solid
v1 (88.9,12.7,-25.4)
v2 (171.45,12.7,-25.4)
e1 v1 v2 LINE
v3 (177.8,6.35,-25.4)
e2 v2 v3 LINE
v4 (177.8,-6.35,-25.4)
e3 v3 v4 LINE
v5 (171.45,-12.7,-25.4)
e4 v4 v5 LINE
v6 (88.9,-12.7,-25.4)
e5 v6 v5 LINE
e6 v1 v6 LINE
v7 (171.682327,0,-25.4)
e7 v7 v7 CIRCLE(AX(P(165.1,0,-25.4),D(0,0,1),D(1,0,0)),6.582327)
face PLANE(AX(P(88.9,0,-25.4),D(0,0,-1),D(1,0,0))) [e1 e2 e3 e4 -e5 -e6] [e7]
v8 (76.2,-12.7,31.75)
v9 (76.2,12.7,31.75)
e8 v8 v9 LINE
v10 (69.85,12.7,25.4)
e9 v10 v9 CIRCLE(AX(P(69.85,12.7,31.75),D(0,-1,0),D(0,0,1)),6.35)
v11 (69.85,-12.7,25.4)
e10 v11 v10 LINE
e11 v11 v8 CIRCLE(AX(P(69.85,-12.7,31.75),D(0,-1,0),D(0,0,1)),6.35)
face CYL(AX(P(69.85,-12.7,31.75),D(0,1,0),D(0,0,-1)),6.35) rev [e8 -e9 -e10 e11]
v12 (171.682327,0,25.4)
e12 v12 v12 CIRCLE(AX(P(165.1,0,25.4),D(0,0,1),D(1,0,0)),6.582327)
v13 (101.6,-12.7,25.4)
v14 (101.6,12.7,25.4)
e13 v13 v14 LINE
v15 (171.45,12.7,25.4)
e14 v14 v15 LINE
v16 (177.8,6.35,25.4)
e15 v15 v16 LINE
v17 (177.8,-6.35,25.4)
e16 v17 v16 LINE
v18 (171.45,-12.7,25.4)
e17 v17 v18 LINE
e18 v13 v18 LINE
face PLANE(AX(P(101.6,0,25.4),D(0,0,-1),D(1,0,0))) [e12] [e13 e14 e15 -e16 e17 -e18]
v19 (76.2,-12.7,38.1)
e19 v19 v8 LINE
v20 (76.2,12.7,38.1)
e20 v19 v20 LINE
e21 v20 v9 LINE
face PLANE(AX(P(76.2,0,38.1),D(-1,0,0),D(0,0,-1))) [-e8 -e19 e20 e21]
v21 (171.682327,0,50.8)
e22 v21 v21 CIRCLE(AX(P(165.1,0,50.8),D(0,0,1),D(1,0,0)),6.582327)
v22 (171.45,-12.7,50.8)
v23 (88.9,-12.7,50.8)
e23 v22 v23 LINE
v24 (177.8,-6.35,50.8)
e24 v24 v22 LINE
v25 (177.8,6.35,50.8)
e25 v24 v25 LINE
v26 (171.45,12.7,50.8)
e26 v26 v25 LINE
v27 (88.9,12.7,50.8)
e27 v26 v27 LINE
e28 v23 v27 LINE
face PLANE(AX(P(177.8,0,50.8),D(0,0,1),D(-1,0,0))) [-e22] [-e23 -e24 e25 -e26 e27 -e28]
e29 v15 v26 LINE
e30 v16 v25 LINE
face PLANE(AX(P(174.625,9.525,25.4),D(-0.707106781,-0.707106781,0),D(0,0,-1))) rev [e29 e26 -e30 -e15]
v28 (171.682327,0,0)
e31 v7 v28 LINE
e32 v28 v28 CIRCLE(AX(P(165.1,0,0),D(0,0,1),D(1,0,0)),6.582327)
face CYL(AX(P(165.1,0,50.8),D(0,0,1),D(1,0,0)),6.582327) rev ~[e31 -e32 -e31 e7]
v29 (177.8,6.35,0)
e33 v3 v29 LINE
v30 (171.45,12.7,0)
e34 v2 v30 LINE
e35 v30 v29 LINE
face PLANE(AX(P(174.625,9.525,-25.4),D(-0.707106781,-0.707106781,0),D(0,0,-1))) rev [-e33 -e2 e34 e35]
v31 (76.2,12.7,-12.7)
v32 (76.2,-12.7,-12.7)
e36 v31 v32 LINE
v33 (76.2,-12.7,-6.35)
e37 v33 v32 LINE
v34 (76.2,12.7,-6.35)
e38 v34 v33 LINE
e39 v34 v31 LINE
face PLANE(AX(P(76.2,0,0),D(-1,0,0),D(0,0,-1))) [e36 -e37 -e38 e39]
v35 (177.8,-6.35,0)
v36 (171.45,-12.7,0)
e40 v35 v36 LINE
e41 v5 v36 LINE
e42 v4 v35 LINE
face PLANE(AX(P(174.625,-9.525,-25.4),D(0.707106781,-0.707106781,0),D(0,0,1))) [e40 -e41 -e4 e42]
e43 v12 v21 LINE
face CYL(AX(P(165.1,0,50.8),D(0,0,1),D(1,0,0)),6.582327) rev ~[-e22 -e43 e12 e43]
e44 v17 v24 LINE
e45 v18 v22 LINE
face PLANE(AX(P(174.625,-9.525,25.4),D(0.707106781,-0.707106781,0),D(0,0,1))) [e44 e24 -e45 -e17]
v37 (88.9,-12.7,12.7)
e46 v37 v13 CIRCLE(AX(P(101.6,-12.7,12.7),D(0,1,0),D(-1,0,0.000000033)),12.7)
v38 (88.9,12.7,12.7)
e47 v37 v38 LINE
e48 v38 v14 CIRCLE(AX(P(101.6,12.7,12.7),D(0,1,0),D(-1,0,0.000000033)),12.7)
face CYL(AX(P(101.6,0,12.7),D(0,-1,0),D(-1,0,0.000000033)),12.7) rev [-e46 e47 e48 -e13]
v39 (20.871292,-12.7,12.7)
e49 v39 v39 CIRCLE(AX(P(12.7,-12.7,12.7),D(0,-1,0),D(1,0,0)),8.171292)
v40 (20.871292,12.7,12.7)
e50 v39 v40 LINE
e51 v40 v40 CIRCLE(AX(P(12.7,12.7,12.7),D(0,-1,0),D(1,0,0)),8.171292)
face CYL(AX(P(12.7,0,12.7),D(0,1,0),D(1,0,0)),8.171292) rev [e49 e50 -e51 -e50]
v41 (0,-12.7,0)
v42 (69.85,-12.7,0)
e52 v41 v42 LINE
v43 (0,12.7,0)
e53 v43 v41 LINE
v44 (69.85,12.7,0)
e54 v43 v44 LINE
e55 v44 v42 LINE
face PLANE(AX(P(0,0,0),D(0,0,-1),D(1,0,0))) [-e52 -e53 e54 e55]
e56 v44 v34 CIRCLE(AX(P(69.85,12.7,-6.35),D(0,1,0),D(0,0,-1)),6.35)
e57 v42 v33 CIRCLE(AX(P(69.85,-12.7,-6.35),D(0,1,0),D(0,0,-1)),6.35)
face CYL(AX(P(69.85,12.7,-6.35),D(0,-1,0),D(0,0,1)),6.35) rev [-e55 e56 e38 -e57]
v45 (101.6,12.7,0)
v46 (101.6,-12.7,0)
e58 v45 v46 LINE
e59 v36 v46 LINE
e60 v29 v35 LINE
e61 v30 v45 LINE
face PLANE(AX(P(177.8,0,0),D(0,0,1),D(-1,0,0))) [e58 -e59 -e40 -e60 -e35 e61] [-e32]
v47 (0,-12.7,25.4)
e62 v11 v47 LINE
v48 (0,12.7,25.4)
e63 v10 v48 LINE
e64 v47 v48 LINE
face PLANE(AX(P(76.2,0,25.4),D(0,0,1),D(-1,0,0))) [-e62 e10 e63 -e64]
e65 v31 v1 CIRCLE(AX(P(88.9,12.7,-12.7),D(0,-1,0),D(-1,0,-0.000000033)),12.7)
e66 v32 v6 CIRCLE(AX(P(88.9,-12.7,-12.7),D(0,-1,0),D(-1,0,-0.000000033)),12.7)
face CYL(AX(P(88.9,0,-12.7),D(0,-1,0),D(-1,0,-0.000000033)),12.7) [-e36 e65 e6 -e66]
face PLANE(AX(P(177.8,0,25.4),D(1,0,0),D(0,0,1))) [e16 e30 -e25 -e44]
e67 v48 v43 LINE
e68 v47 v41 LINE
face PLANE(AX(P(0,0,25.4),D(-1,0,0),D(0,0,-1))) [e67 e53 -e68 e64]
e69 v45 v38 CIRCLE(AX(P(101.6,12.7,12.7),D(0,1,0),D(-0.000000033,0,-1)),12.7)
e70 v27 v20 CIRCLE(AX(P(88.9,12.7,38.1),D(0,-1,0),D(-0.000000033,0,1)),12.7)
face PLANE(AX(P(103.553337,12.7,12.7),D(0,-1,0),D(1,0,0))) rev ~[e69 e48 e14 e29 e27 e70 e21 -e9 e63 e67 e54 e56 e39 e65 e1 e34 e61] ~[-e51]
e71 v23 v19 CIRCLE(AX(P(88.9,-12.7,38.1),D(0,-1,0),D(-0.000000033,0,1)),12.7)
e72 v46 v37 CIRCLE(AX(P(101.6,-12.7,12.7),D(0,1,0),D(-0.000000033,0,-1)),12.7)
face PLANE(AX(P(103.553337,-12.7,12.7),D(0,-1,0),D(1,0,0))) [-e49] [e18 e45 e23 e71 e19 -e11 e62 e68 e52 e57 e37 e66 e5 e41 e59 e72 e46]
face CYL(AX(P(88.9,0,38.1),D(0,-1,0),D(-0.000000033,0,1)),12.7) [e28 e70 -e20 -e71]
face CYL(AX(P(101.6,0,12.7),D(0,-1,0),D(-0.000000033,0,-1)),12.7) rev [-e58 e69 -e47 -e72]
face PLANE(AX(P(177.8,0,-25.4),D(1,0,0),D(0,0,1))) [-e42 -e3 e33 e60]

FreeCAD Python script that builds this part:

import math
import FreeCAD as App
import Part
import Sketcher
from FreeCAD import Vector
Q = App.Units.Quantity


def edges_at(feature, points):
    """Names of the edges that pass closest to the given points."""
    edges = feature.Shape.Edges
    near = lambda p: min(range(len(edges)), key=lambda i: edges[i].distToShape(Part.Vertex(*p))[0])
    return sorted({f"Edge{near(p) + 1}" for p in points})

doc = App.newDocument("Part")
body = doc.addObject("PartDesign::Body", "Body")

sketch1 = body.newObject("Sketcher::SketchObject", "Sketch")
sketch1.AttachmentSupport = (doc.getObject("XZ_Plane"), [""])
sketch1.MapMode = "FlatFace"
sketch1.addGeometry(Part.LineSegment(Vector(0, 25, 0), Vector(0, 0, 0)), False)
sketch1.addGeometry(Part.LineSegment(Vector(0, 0, 0), Vector(76, 0, 0)), False)
sketch1.addGeometry(Part.LineSegment(Vector(76, 0, 0), Vector(76, -13, 0)), False)
sketch1.addGeometry(Part.ArcOfCircle(Part.Circle(Vector(89, -13, 0), Vector(0, 0, 1), 13), math.radians(-180), math.radians(-90)), False)
sketch1.addGeometry(Part.LineSegment(Vector(89, -25, 0), Vector(178, -25, 0)), False)
sketch1.addGeometry(Part.LineSegment(Vector(178, -25, 0), Vector(178, 0, 0)), False)
sketch1.addGeometry(Part.LineSegment(Vector(178, 0, 0), Vector(102, 0, 0)), False)
sketch1.addGeometry(Part.ArcOfCircle(Part.Circle(Vector(102, 13, 0), Vector(0, 0, 1), 13), math.radians(-180), math.radians(-90)), False)
sketch1.addGeometry(Part.ArcOfCircle(Part.Circle(Vector(102, 13, 0), Vector(0, 0, 1), 13), math.radians(90), math.radians(180)), False)
sketch1.addGeometry(Part.LineSegment(Vector(102, 25, 0), Vector(178, 25, 0)), False)
sketch1.addGeometry(Part.LineSegment(Vector(178, 25, 0), Vector(178, 51, 0)), False)
sketch1.addGeometry(Part.LineSegment(Vector(178, 51, 0), Vector(89, 51, 0)), False)
sketch1.addGeometry(Part.ArcOfCircle(Part.Circle(Vector(89, 38, 0), Vector(0, 0, 1), 13), math.radians(90), math.radians(180)), False)
sketch1.addGeometry(Part.LineSegment(Vector(76, 38, 0), Vector(76, 25, 0)), False)
sketch1.addGeometry(Part.LineSegment(Vector(76, 25, 0), Vector(0, 25, 0)), False)
sketch1.addGeometry(Part.Circle(Vector(13, 13, 0), Vector(0, 0, 1), 8), False)
sketch1.addConstraint(Sketcher.Constraint("Coincident", 0, 2, 1, 1))
sketch1.addConstraint(Sketcher.Constraint("Coincident", 1, 2, 2, 1))
sketch1.addConstraint(Sketcher.Constraint("Tangent", 2, 2, 3, 1))
sketch1.addConstraint(Sketcher.Constraint("Tangent", 3, 2, 4, 1))
sketch1.addConstraint(Sketcher.Constraint("Coincident", 4, 2, 5, 1))
sketch1.addConstraint(Sketcher.Constraint("Coincident", 5, 2, 6, 1))
sketch1.addConstraint(Sketcher.Constraint("Tangent", 6, 2, 7, 2))
sketch1.addConstraint(Sketcher.Constraint("Tangent", 7, 1, 8, 2))
sketch1.addConstraint(Sketcher.Constraint("Tangent", 8, 1, 9, 1))
sketch1.addConstraint(Sketcher.Constraint("Coincident", 9, 2, 10, 1))
sketch1.addConstraint(Sketcher.Constraint("Coincident", 10, 2, 11, 1))
sketch1.addConstraint(Sketcher.Constraint("Tangent", 11, 2, 12, 1))
sketch1.addConstraint(Sketcher.Constraint("Tangent", 12, 2, 13, 1))
sketch1.addConstraint(Sketcher.Constraint("Coincident", 13, 2, 14, 1))
sketch1.addConstraint(Sketcher.Constraint("Coincident", 14, 2, 0, 1))
sketch1.addConstraint(Sketcher.Constraint("Vertical", 0))
sketch1.addConstraint(Sketcher.Constraint("Horizontal", 1))
sketch1.addConstraint(Sketcher.Constraint("Vertical", 2))
sketch1.addConstraint(Sketcher.Constraint("Horizontal", 4))
sketch1.addConstraint(Sketcher.Constraint("Vertical", 5))
sketch1.addConstraint(Sketcher.Constraint("Horizontal", 6))
sketch1.addConstraint(Sketcher.Constraint("Horizontal", 9))
sketch1.addConstraint(Sketcher.Constraint("Vertical", 10))
sketch1.addConstraint(Sketcher.Constraint("Horizontal", 11))
sketch1.addConstraint(Sketcher.Constraint("Vertical", 13))
sketch1.addConstraint(Sketcher.Constraint("Horizontal", 14))
sketch1.addConstraint(Sketcher.Constraint("Coincident", 0, 2, -1, 1))
sketch1.addConstraint(Sketcher.Constraint("Equal", 3, 7))
sketch1.addConstraint(Sketcher.Constraint("Equal", 7, 8))
sketch1.addConstraint(Sketcher.Constraint("Equal", 8, 12))
sketch1.addConstraint(Sketcher.Constraint("Symmetric", 4, 2, 9, 2, -1))
sketch1.addConstraint(Sketcher.Constraint("PointOnObject", 5, 2, -1))
sketch1.addConstraint(Sketcher.Constraint("Horizontal", 8, 3, 15, 3))
sketch1.addConstraint(Sketcher.Constraint("Horizontal", 15, 3, 7, 1))
sketch1.addConstraint(Sketcher.Constraint("Horizontal", 9, 2, 13, 2))
sketch1.addConstraint(Sketcher.Constraint("Vertical", 3, 3, 12, 3))
sketch1.addConstraint(Sketcher.Constraint("Vertical", 3, 2, 7, 1))
sketch1.addConstraint(Sketcher.Constraint("Equal", 1, 6))
sketch1.addConstraint(Sketcher.Constraint("Equal", 5, 10))
sketch1.addConstraint(Sketcher.Constraint("Radius", 3, Q("0.5 in")))
sketch1.addConstraint(Sketcher.Constraint("DistanceX", 1, 1, 1, 2, Q("3 in")))
sketch1.addConstraint(Sketcher.Constraint("DistanceX", 15, 3, 3, 3, Q("3 in")))
sketch1.addConstraint(Sketcher.Constraint("Diameter", 15, Q("16.342584 mm")))
pad1 = body.newObject("PartDesign::Pad", "Pad")
pad1.Profile = sketch1
pad1.Length = Q("1 in")
pad1.Midplane = True

sketch2 = body.newObject("Sketcher::SketchObject", "Sketch001")
sketch2.AttachmentSupport = (doc.getObject("XY_Plane"), [""])
sketch2.MapMode = "FlatFace"
sketch2.AttachmentOffset = App.Placement(Vector(0, 0, 2 * 25.4), App.Rotation())
sketch2.addGeometry(Part.Circle(Vector(165, 0, 0), Vector(0, 0, 1), 7), False)
sketch2.addConstraint(Sketcher.Constraint("PointOnObject", 0, 3, -1))
sketch2.addConstraint(Sketcher.Constraint("DistanceX", -1, 1, 0, 3, Q("6.5 in")))
sketch2.addConstraint(Sketcher.Constraint("Diameter", 0, Q("13.164654 mm")))
pocket1 = body.newObject("PartDesign::Pocket", "Pocket")
pocket1.Profile = sketch2
pocket1.Length = Q("10 in")
pocket1.Midplane = True
doc.recompute()

fillet = body.newObject("PartDesign::Fillet", "Fillet")
fillet.Base = (pocket1, edges_at(pocket1, [(76.2, 0, 25.4), (76.2, 0, 0)]))
fillet.Radius = Q("0.25 in")
doc.recompute()

chamfer = body.newObject("PartDesign::Chamfer", "Chamfer")
chamfer.Base = (fillet, edges_at(fillet, [
    (177.8, 12.7, 38.1),
    (177.8, -12.7, 38.1),
    (177.8, -12.7, -12.7),
    (177.8, 12.7, -12.7),
]))
chamfer.Size = Q("0.25 in")

doc.recompute()
